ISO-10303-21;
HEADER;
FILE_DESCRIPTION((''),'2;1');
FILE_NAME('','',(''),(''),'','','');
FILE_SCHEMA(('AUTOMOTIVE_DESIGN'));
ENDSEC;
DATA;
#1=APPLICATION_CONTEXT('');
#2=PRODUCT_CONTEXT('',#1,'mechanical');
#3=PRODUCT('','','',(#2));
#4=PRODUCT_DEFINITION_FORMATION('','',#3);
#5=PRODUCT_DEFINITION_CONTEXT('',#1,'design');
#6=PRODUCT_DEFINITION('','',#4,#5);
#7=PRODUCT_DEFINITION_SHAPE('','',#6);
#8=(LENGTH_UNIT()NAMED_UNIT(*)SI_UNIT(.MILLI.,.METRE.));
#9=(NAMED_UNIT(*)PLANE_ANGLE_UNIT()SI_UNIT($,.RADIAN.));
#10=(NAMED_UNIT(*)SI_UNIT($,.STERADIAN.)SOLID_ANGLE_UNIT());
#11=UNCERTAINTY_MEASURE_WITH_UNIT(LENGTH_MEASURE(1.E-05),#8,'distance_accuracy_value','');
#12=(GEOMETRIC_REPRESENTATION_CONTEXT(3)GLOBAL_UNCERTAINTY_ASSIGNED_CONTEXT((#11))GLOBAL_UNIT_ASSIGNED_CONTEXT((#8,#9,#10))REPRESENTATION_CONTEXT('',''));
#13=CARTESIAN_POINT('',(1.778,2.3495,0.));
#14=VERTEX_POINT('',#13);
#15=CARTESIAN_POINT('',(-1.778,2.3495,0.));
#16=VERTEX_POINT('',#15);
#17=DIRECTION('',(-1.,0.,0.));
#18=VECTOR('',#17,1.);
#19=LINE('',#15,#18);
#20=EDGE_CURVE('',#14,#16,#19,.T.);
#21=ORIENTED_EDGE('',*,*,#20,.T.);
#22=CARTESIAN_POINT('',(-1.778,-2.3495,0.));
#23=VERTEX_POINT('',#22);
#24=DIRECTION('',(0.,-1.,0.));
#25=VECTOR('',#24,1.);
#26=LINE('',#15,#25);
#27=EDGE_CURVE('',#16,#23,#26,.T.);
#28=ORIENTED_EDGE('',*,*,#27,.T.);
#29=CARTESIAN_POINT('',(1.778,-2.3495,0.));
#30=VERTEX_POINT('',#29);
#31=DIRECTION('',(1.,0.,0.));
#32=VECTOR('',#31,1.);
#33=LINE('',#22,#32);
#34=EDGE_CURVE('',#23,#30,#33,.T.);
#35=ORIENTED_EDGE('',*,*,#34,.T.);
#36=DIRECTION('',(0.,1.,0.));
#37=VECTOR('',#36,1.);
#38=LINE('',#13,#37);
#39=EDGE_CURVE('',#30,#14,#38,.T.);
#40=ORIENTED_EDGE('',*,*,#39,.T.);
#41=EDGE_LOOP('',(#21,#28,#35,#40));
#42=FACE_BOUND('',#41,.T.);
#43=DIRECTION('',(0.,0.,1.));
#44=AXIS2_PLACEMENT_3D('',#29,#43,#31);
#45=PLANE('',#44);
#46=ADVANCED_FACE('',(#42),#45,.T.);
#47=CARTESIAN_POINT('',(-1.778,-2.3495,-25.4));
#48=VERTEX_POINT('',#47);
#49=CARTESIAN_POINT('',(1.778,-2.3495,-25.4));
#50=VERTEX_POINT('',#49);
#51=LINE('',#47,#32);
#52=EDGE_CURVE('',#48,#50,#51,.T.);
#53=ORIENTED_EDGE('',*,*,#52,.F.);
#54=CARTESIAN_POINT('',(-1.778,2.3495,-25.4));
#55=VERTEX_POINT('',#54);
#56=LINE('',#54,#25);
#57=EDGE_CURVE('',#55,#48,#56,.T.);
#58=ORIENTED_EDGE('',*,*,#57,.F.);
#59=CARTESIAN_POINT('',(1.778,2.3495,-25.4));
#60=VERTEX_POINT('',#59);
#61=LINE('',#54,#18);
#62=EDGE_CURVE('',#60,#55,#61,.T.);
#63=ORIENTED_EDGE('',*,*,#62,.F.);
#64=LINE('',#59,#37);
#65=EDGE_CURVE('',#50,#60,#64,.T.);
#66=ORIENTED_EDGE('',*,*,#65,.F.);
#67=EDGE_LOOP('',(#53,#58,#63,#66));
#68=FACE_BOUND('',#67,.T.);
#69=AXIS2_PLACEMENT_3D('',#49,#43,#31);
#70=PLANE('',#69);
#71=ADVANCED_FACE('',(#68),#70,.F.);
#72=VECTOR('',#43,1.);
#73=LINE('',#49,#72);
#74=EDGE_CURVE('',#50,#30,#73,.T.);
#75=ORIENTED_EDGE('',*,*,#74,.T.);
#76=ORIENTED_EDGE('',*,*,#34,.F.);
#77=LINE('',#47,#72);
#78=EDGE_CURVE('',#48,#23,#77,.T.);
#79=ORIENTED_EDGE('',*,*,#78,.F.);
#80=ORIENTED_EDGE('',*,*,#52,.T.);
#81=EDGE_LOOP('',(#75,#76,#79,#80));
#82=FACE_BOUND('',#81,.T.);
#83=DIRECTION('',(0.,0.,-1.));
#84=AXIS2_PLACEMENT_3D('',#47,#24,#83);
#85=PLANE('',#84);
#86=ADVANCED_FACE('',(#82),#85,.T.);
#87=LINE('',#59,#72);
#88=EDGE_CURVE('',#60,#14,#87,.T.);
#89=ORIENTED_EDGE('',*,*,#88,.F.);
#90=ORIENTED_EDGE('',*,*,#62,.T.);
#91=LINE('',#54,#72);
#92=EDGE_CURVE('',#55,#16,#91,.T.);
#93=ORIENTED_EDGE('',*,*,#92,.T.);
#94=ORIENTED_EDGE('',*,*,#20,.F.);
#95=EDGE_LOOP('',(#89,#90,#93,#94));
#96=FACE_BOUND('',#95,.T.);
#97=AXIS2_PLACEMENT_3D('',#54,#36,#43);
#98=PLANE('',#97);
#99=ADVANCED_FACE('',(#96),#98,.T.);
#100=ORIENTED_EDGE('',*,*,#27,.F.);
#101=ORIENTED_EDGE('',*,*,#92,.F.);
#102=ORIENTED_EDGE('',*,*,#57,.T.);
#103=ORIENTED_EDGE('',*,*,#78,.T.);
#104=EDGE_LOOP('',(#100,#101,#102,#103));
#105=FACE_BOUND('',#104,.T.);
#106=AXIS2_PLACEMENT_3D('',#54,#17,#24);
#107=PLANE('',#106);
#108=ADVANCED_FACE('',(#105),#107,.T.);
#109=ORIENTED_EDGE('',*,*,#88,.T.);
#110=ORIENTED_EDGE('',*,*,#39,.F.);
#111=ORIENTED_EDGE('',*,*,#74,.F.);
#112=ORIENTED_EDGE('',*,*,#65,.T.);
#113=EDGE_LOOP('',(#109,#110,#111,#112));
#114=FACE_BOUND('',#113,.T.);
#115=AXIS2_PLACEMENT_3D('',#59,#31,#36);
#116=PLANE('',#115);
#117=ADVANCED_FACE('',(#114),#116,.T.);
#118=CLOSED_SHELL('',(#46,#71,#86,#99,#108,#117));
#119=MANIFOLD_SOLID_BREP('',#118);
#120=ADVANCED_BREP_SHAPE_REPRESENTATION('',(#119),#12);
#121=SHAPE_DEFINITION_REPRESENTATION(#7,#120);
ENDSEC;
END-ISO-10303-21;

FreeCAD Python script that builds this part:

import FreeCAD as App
import Part
import Sketcher

V = App.Vector
Q = App.Units.Quantity

doc = App.newDocument("Part")
body = doc.addObject("PartDesign::Body", "Body")

sketch1 = doc.addObject("Sketcher::SketchObject", "Sketch")
body.addObject(sketch1)
sketch1.AttachmentSupport = (doc.XY_Plane, [""])
sketch1.MapMode = "FlatFace"
sketch1.addGeometry([
    Part.LineSegment(V(-1.778, 2.3495, 0), V(-1.778, -2.3495, 0)),
    Part.LineSegment(V(-1.778, -2.3495, 0), V(1.778, -2.3495, 0)),
    Part.LineSegment(V(1.778, -2.3495, 0), V(1.778, 2.3495, 0)),
    Part.LineSegment(V(1.778, 2.3495, 0), V(-1.778, 2.3495, 0)),
], False)
sketch1.addConstraint([
    Sketcher.Constraint("Coincident", 0, 2, 1, 1),
    Sketcher.Constraint("Coincident", 1, 2, 2, 1),
    Sketcher.Constraint("Coincident", 2, 2, 3, 1),
    Sketcher.Constraint("Coincident", 3, 2, 0, 1),
    Sketcher.Constraint("Vertical", 0),
    Sketcher.Constraint("Horizontal", 1),
    Sketcher.Constraint("Vertical", 2),
    Sketcher.Constraint("Horizontal", 3),
    Sketcher.Constraint("Symmetric", 0, 2, 2, 2, -1, 1),
    Sketcher.Constraint("DistanceX", 1, 1, 1, 2, Q("0.14 in")),
    Sketcher.Constraint("DistanceY", 0, 2, 0, 1, Q("0.185 in")),
])
pad1 = doc.addObject("PartDesign::Pad", "Pad")
body.addObject(pad1)
pad1.Profile = sketch1
pad1.Length = Q("1 in")
pad1.Reversed = True

doc.recompute()
